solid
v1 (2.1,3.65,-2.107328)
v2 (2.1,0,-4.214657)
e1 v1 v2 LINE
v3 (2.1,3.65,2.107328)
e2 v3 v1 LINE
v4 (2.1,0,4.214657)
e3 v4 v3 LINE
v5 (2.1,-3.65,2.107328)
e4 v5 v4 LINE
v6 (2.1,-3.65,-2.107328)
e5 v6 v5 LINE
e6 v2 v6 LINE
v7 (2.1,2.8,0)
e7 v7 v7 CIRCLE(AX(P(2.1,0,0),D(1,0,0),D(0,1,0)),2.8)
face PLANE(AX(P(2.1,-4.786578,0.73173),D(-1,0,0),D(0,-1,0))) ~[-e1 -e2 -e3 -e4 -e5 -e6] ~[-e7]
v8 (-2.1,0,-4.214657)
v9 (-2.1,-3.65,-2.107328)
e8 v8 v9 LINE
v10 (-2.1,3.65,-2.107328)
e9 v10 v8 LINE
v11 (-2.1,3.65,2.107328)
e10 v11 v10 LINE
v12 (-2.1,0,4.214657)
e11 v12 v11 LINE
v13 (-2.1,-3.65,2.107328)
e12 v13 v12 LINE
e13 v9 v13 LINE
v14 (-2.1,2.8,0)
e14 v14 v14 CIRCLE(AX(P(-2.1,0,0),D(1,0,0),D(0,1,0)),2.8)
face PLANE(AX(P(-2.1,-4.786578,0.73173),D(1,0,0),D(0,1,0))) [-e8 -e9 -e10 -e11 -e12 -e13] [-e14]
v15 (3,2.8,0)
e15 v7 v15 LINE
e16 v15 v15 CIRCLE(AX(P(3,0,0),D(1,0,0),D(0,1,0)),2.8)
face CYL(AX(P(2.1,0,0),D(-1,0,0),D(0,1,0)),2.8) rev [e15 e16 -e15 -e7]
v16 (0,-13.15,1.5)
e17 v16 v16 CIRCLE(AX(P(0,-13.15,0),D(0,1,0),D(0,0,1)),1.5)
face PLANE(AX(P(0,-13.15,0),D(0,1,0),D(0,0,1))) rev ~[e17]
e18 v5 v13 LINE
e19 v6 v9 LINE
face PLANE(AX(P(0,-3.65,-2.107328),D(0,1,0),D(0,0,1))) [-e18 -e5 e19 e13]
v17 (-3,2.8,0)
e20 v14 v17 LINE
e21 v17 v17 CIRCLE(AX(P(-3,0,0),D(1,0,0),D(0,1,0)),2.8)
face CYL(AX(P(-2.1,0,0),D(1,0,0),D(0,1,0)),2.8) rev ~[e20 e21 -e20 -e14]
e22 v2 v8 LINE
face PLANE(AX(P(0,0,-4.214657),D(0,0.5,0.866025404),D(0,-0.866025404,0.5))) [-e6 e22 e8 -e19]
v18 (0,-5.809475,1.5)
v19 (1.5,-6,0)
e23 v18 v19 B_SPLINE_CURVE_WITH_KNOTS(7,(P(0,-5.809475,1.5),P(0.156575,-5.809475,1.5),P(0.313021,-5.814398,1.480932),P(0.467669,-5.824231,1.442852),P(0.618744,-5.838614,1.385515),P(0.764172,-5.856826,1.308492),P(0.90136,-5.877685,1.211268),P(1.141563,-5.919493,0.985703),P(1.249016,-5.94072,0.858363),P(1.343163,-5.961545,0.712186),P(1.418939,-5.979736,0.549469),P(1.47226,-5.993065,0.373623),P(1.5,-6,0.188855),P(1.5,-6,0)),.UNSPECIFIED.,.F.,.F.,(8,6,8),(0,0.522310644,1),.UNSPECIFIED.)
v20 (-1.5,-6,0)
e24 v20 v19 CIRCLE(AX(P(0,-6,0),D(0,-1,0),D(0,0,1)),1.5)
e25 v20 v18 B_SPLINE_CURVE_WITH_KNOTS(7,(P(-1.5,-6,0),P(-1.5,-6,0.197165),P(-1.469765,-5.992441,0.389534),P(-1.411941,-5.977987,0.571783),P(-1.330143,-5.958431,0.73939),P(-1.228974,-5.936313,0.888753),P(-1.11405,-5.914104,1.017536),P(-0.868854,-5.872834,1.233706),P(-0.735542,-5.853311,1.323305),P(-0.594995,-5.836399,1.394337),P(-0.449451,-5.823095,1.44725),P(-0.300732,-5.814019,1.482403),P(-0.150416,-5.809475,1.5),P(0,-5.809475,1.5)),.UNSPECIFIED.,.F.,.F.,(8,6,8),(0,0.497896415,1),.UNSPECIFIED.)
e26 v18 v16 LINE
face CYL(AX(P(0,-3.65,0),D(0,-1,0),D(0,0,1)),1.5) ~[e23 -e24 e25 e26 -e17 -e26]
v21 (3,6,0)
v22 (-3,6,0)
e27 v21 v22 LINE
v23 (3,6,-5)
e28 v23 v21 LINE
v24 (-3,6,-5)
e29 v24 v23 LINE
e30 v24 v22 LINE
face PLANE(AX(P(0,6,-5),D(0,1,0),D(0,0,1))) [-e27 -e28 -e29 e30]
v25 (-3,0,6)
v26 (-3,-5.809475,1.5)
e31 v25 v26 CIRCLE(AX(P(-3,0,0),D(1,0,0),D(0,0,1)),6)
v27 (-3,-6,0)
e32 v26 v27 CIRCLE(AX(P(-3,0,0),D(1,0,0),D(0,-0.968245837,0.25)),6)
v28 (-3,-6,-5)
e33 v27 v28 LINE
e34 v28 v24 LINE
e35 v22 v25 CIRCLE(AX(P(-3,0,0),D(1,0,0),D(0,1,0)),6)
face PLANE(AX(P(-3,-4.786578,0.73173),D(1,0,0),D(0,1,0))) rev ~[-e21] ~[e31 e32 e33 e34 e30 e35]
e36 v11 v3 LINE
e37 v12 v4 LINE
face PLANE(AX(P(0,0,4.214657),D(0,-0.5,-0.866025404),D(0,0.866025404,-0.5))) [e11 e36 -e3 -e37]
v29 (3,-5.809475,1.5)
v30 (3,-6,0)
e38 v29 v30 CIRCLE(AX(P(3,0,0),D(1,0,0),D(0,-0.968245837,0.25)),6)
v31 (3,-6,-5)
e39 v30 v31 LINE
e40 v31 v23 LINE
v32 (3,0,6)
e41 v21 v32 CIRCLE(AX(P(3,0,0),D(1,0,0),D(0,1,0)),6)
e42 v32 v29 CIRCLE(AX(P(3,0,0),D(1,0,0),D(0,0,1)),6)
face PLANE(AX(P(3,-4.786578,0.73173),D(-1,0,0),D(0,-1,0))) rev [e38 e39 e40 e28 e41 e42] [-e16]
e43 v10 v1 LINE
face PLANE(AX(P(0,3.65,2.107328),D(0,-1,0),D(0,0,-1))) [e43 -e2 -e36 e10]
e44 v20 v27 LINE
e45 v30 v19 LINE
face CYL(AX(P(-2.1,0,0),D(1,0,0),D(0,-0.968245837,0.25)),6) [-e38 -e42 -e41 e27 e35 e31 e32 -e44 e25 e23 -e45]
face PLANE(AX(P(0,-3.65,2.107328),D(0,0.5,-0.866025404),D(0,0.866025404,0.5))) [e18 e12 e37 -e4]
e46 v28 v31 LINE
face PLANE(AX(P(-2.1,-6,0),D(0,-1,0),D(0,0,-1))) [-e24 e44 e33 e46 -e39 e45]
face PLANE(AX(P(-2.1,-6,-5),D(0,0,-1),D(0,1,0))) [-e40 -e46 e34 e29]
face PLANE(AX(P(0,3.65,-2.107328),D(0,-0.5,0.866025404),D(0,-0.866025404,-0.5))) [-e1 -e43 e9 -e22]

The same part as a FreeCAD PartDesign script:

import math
import FreeCAD as App
import Part
import Sketcher

V = App.Vector
Q = App.Units.Quantity


def add_polygon(sketch, points):
    """Adds a closed chain of lines whose ends are joined by coincident constraints."""
    first, n = sketch.GeometryCount, len(points)
    for a, b in zip(points, points[1:] + points[:1]):
        sketch.addGeometry(Part.LineSegment(App.Vector(*a, 0), App.Vector(*b, 0)), False)
    for i in range(n):
        sketch.addConstraint(Sketcher.Constraint("Coincident", first + i, 2, first + (i + 1) % n, 1))

doc = App.newDocument("Part")
body = doc.addObject("PartDesign::Body", "Body")

# Sketch on YZ plane
sketch1 = body.newObject("Sketcher::SketchObject", "Sketch")
sketch1.AttachmentSupport = (doc.getObject("YZ_Plane"), [""])
sketch1.MapMode = "FlatFace"
sketch1.addGeometry(Part.LineSegment(V(-6, 0, 0), V(-6, -5, 0)), False)  # 0
sketch1.addGeometry(Part.LineSegment(V(-6, -5, 0), V(6, -5, 0)), False)  # 1
sketch1.addGeometry(Part.LineSegment(V(6, -5, 0), V(6, 0, 0)), False)  # 2
sketch1.addGeometry(Part.ArcOfCircle(Part.Circle(V(0, 0, 0), V(0, 0, 1), 6), math.radians(0), math.radians(90)), False)  # 3
sketch1.addGeometry(Part.ArcOfCircle(Part.Circle(V(0, 0, 0), V(0, 0, 1), 6), math.radians(90), math.radians(165.522488)), False)  # 4
sketch1.addGeometry(Part.ArcOfCircle(Part.Circle(V(0, 0, 0), V(0, 0, 1), 6), math.radians(165.522488), math.radians(180)), False)  # 5
add_polygon(sketch1, [(-3.65, 2.107328), (0, 4.214657), (3.65, 2.107328), (3.65, -2.107328), (0, -4.214657), (-3.65, -2.107328)])  # lines 6-11
sketch1.addConstraint(Sketcher.Constraint("Coincident", 0, 2, 1, 1))
sketch1.addConstraint(Sketcher.Constraint("Coincident", 1, 2, 2, 1))
sketch1.addConstraint(Sketcher.Constraint("Tangent", 2, 2, 3, 1))
sketch1.addConstraint(Sketcher.Constraint("Tangent", 3, 2, 4, 1))
sketch1.addConstraint(Sketcher.Constraint("Tangent", 4, 2, 5, 1))
sketch1.addConstraint(Sketcher.Constraint("Tangent", 5, 2, 0, 1))
sketch1.addConstraint(Sketcher.Constraint("Vertical", 0))
sketch1.addConstraint(Sketcher.Constraint("Horizontal", 1))
sketch1.addConstraint(Sketcher.Constraint("Vertical", 2))
sketch1.addConstraint(Sketcher.Constraint("Vertical", 8))
sketch1.addConstraint(Sketcher.Constraint("Vertical", 11))
sketch1.addConstraint(Sketcher.Constraint("Coincident", 3, 3, -1, 1))
sketch1.addConstraint(Sketcher.Constraint("Coincident", 5, 3, -1, 1))
sketch1.addConstraint(Sketcher.Constraint("Symmetric", 6, 2, 9, 2, -1, 1))
sketch1.addConstraint(Sketcher.Constraint("Symmetric", 7, 2, 10, 2, -1, 1))
sketch1.addConstraint(Sketcher.Constraint("PointOnObject", 3, 2, -2))
sketch1.addConstraint(Sketcher.Constraint("PointOnObject", 6, 2, -2))
sketch1.addConstraint(Sketcher.Constraint("Parallel", 6, 9))
sketch1.addConstraint(Sketcher.Constraint("Horizontal", 8, 2, 10, 2))
sketch1.addConstraint(Sketcher.Constraint("Radius", 3, Q("6 mm")))
sketch1.addConstraint(Sketcher.Constraint("DistanceY", 0, 2, 0, 1, Q("5 mm")))
sketch1.addConstraint(Sketcher.Constraint("Angle", 6, Q("30 deg")))
sketch1.addConstraint(Sketcher.Constraint("DistanceY", -1, 1, 4, 2, Q("1.5 mm")))
sketch1.addConstraint(Sketcher.Constraint("DistanceX", -1, 1, 7, 2, Q("3.65 mm")))
sketch1.addConstraint(Sketcher.Constraint("DistanceY", 8, 2, 8, 1, Q("4.214657 mm")))
pad1 = body.newObject("PartDesign::Pad", "Pad")
pad1.Profile = sketch1
pad1.Length = 4.2
pad1.Midplane = True

# Sketch on YZ plane
sketch2 = body.newObject("Sketcher::SketchObject", "Sketch001")
sketch2.AttachmentSupport = (doc.getObject("YZ_Plane"), [""])
sketch2.MapMode = "FlatFace"
sketch2.AttachmentOffset = App.Placement(V(0, 0, -2.1), App.Rotation())
sketch2.addGeometry(Part.ArcOfCircle(Part.Circle(V(0, 0, 0), V(0, 0, 1), 6), math.radians(165.522488), math.radians(180)), False)
sketch2.addGeometry(Part.LineSegment(V(-6, 0, 0), V(-6, -5, 0)), False)
sketch2.addGeometry(Part.LineSegment(V(-6, -5, 0), V(6, -5, 0)), False)
sketch2.addGeometry(Part.LineSegment(V(6, -5, 0), V(6, 0, 0)), False)
sketch2.addGeometry(Part.ArcOfCircle(Part.Circle(V(0, 0, 0), V(0, 0, 1), 6), math.radians(0), math.radians(90)), False)
sketch2.addGeometry(Part.ArcOfCircle(Part.Circle(V(0, 0, 0), V(0, 0, 1), 6), math.radians(90), math.radians(165.522488)), False)
sketch2.addGeometry(Part.Circle(V(0, 0, 0), V(0, 0, 1), 2.8), False)
sketch2.addConstraint(Sketcher.Constraint("Tangent", 0, 2, 1, 1))
sketch2.addConstraint(Sketcher.Constraint("Coincident", 1, 2, 2, 1))
sketch2.addConstraint(Sketcher.Constraint("Coincident", 2, 2, 3, 1))
sketch2.addConstraint(Sketcher.Constraint("Tangent", 3, 2, 4, 1))
sketch2.addConstraint(Sketcher.Constraint("Tangent", 4, 2, 5, 1))
sketch2.addConstraint(Sketcher.Constraint("Tangent", 5, 2, 0, 1))
sketch2.addConstraint(Sketcher.Constraint("Vertical", 1))
sketch2.addConstraint(Sketcher.Constraint("Horizontal", 2))
sketch2.addConstraint(Sketcher.Constraint("Vertical", 3))
sketch2.addConstraint(Sketcher.Constraint("Coincident", 0, 3, -1, 1))
sketch2.addConstraint(Sketcher.Constraint("Coincident", 4, 3, -1, 1))
sketch2.addConstraint(Sketcher.Constraint("Coincident", 6, 3, -1, 1))
sketch2.addConstraint(Sketcher.Constraint("PointOnObject", 4, 2, -2))
sketch2.addConstraint(Sketcher.Constraint("Radius", 0, Q("6 mm")))
sketch2.addConstraint(Sketcher.Constraint("Diameter", 6, Q("5.6 mm")))
sketch2.addConstraint(Sketcher.Constraint("DistanceY", 1, 2, 1, 1, Q("5 mm")))
sketch2.addConstraint(Sketcher.Constraint("DistanceY", -1, 1, 5, 2, Q("1.5 mm")))
pad2 = body.newObject("PartDesign::Pad", "Pad001")
pad2.Profile = sketch2
pad2.Length = 0.9
pad2.Reversed = True

# Sketch on YZ plane
sketch3 = body.newObject("Sketcher::SketchObject", "Sketch002")
sketch3.AttachmentSupport = (doc.getObject("YZ_Plane"), [""])
sketch3.MapMode = "FlatFace"
add_polygon(sketch3, [(-13.15, 1.5), (-13.15, 0), (-3.65, 0), (-3.65, 1.5)])  # lines 0-3
sketch3.addConstraint(Sketcher.Constraint("Vertical", 0))
sketch3.addConstraint(Sketcher.Constraint("Horizontal", 1))
sketch3.addConstraint(Sketcher.Constraint("Vertical", 2))
sketch3.addConstraint(Sketcher.Constraint("Horizontal", 3))
sketch3.addConstraint(Sketcher.Constraint("PointOnObject", 0, 2, -1))
sketch3.addConstraint(Sketcher.Constraint("DistanceX", 1, 1, 1, 2, Q("9.5 mm")))
sketch3.addConstraint(Sketcher.Constraint("DistanceY", 0, 2, 0, 1, Q("1.5 mm")))
sketch3.addConstraint(Sketcher.Constraint("DistanceX", 0, 2, -1, 1, Q("13.15 mm")))
revolution = body.newObject("PartDesign::Revolution", "Revolution")
revolution.Profile = sketch3
revolution.ReferenceAxis = (sketch3, ["H_Axis"])
revolution.Angle = 360
body2 = doc.addObject("PartDesign::Body", "Body001")
doc.recompute()

body2.BaseFeature = body
doc.recompute()

mirroring = doc.addObject("Part::Mirroring", "Mirroring")
mirroring.Source = body
mirroring.Base = V(0, 0, 0)
mirroring.Normal = V(1, 0, 0)
body3 = doc.addObject("PartDesign::Body", "Body002")
body3.BaseFeature = mirroring
boolean = body2.newObject("PartDesign::Boolean", "Boolean")
boolean.Type = "Fuse"
boolean.addObjects([body3])
doc.recompute()
mirroring.Visibility = False

doc.recompute()
